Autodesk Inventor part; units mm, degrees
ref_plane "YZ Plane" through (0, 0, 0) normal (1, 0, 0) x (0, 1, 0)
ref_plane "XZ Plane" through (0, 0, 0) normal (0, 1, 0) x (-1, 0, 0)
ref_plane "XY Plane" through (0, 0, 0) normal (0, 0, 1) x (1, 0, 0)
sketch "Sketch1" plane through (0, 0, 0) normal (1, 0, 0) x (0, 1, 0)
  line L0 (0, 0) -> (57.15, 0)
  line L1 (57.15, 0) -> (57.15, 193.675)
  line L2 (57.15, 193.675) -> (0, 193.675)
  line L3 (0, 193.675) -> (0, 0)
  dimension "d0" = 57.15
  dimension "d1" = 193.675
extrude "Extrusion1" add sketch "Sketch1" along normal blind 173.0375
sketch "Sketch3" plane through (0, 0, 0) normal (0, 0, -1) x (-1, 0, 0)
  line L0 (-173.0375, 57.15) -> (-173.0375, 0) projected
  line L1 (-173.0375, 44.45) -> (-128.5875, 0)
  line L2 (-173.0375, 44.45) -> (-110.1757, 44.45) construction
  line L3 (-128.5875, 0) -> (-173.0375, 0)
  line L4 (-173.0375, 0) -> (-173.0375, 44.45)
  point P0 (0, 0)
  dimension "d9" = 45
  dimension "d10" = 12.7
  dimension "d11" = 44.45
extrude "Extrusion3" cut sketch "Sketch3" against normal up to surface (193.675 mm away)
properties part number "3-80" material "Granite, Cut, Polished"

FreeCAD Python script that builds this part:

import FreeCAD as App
import Part
import Sketcher

V = App.Vector
Q = App.Units.Quantity

doc = App.newDocument("Part")
params = doc.addObject("Spreadsheet::Sheet", "Params")
for row, (alias, value) in enumerate([
    ("sketch1_width", "2.25 in"),
    ("sketch1_height", "7.625 in"),
    ("pad1_length", "6.8125 in"),
    ("sketch2_width", "1.75 in"),
    ("pocket1_length", "7.625 in"),
], start=1):
    params.set(f"A{row}", alias)
    params.set(f"B{row}", "=" + value)
    params.setAlias(f"B{row}", alias)

body = doc.addObject("PartDesign::Body", "Body")

sketch1 = body.newObject("Sketcher::SketchObject", "Sketch")
sketch1.AttachmentSupport = (doc.getObject("YZ_Plane"), [""])
sketch1.MapMode = "FlatFace"
sketch1.addGeometry(Part.LineSegment(V(0, 193.675, 0), V(0, 0, 0)), False)
sketch1.addGeometry(Part.LineSegment(V(0, 0, 0), V(57.15, 0, 0)), False)
sketch1.addGeometry(Part.LineSegment(V(57.15, 0, 0), V(57.15, 193.675, 0)), False)
sketch1.addGeometry(Part.LineSegment(V(57.15, 193.675, 0), V(0, 193.675, 0)), False)
sketch1.addConstraint(Sketcher.Constraint("Coincident", 0, 2, 1, 1))
sketch1.addConstraint(Sketcher.Constraint("Coincident", 1, 2, 2, 1))
sketch1.addConstraint(Sketcher.Constraint("Coincident", 2, 2, 3, 1))
sketch1.addConstraint(Sketcher.Constraint("Coincident", 3, 2, 0, 1))
sketch1.addConstraint(Sketcher.Constraint("Vertical", 0))
sketch1.addConstraint(Sketcher.Constraint("Horizontal", 1))
sketch1.addConstraint(Sketcher.Constraint("Vertical", 2))
sketch1.addConstraint(Sketcher.Constraint("Horizontal", 3))
sketch1.addConstraint(Sketcher.Constraint("Coincident", 0, 2, -1, 1))
sketch1.addConstraint(Sketcher.Constraint("DistanceX", 1, 1, 1, 2, Q("2.25 in")))
sketch1.addConstraint(Sketcher.Constraint("DistanceY", 0, 2, 0, 1, Q("7.625 in")))
sketch1.setExpression("Constraints[9]", "Params.sketch1_width")
sketch1.setExpression("Constraints[10]", "Params.sketch1_height")
pad1 = body.newObject("PartDesign::Pad", "Pad")
pad1.Profile = sketch1
pad1.setExpression("Length", "Params.pad1_length")

sketch2 = body.newObject("Sketcher::SketchObject", "Sketch001")
sketch2.AttachmentSupport = (doc.getObject("XY_Plane"), [""])
sketch2.MapMode = "FlatFace"
sketch2.addGeometry(Part.LineSegment(V(128.5875, 0, 0), V(173.0375, 44.45, 0)), False)
sketch2.addGeometry(Part.LineSegment(V(173.0375, 44.45, 0), V(173.0375, 0, 0)), False)
sketch2.addGeometry(Part.LineSegment(V(173.0375, 0, 0), V(128.5875, 0, 0)), False)
sketch2.addConstraint(Sketcher.Constraint("Coincident", 0, 2, 1, 1))
sketch2.addConstraint(Sketcher.Constraint("Coincident", 1, 2, 2, 1))
sketch2.addConstraint(Sketcher.Constraint("Coincident", 2, 2, 0, 1))
sketch2.addConstraint(Sketcher.Constraint("Vertical", 1))
sketch2.addConstraint(Sketcher.Constraint("Horizontal", 2))
sketch2.addConstraint(Sketcher.Constraint("PointOnObject", 1, 2, -1))
sketch2.addConstraint(Sketcher.Constraint("Equal", 2, 1))
sketch2.addConstraint(Sketcher.Constraint("DistanceX", 2, 2, 2, 1, Q("1.75 in")))
sketch2.addConstraint(Sketcher.Constraint("DistanceX", -1, 1, 0, 2, Q("6.8125 in")))
sketch2.setExpression("Constraints[7]", "Params.sketch2_width")
pocket1 = body.newObject("PartDesign::Pocket", "Pocket")
pocket1.Profile = sketch2
pocket1.setExpression("Length", "Params.pocket1_length")
pocket1.Reversed = True

doc.recompute()
